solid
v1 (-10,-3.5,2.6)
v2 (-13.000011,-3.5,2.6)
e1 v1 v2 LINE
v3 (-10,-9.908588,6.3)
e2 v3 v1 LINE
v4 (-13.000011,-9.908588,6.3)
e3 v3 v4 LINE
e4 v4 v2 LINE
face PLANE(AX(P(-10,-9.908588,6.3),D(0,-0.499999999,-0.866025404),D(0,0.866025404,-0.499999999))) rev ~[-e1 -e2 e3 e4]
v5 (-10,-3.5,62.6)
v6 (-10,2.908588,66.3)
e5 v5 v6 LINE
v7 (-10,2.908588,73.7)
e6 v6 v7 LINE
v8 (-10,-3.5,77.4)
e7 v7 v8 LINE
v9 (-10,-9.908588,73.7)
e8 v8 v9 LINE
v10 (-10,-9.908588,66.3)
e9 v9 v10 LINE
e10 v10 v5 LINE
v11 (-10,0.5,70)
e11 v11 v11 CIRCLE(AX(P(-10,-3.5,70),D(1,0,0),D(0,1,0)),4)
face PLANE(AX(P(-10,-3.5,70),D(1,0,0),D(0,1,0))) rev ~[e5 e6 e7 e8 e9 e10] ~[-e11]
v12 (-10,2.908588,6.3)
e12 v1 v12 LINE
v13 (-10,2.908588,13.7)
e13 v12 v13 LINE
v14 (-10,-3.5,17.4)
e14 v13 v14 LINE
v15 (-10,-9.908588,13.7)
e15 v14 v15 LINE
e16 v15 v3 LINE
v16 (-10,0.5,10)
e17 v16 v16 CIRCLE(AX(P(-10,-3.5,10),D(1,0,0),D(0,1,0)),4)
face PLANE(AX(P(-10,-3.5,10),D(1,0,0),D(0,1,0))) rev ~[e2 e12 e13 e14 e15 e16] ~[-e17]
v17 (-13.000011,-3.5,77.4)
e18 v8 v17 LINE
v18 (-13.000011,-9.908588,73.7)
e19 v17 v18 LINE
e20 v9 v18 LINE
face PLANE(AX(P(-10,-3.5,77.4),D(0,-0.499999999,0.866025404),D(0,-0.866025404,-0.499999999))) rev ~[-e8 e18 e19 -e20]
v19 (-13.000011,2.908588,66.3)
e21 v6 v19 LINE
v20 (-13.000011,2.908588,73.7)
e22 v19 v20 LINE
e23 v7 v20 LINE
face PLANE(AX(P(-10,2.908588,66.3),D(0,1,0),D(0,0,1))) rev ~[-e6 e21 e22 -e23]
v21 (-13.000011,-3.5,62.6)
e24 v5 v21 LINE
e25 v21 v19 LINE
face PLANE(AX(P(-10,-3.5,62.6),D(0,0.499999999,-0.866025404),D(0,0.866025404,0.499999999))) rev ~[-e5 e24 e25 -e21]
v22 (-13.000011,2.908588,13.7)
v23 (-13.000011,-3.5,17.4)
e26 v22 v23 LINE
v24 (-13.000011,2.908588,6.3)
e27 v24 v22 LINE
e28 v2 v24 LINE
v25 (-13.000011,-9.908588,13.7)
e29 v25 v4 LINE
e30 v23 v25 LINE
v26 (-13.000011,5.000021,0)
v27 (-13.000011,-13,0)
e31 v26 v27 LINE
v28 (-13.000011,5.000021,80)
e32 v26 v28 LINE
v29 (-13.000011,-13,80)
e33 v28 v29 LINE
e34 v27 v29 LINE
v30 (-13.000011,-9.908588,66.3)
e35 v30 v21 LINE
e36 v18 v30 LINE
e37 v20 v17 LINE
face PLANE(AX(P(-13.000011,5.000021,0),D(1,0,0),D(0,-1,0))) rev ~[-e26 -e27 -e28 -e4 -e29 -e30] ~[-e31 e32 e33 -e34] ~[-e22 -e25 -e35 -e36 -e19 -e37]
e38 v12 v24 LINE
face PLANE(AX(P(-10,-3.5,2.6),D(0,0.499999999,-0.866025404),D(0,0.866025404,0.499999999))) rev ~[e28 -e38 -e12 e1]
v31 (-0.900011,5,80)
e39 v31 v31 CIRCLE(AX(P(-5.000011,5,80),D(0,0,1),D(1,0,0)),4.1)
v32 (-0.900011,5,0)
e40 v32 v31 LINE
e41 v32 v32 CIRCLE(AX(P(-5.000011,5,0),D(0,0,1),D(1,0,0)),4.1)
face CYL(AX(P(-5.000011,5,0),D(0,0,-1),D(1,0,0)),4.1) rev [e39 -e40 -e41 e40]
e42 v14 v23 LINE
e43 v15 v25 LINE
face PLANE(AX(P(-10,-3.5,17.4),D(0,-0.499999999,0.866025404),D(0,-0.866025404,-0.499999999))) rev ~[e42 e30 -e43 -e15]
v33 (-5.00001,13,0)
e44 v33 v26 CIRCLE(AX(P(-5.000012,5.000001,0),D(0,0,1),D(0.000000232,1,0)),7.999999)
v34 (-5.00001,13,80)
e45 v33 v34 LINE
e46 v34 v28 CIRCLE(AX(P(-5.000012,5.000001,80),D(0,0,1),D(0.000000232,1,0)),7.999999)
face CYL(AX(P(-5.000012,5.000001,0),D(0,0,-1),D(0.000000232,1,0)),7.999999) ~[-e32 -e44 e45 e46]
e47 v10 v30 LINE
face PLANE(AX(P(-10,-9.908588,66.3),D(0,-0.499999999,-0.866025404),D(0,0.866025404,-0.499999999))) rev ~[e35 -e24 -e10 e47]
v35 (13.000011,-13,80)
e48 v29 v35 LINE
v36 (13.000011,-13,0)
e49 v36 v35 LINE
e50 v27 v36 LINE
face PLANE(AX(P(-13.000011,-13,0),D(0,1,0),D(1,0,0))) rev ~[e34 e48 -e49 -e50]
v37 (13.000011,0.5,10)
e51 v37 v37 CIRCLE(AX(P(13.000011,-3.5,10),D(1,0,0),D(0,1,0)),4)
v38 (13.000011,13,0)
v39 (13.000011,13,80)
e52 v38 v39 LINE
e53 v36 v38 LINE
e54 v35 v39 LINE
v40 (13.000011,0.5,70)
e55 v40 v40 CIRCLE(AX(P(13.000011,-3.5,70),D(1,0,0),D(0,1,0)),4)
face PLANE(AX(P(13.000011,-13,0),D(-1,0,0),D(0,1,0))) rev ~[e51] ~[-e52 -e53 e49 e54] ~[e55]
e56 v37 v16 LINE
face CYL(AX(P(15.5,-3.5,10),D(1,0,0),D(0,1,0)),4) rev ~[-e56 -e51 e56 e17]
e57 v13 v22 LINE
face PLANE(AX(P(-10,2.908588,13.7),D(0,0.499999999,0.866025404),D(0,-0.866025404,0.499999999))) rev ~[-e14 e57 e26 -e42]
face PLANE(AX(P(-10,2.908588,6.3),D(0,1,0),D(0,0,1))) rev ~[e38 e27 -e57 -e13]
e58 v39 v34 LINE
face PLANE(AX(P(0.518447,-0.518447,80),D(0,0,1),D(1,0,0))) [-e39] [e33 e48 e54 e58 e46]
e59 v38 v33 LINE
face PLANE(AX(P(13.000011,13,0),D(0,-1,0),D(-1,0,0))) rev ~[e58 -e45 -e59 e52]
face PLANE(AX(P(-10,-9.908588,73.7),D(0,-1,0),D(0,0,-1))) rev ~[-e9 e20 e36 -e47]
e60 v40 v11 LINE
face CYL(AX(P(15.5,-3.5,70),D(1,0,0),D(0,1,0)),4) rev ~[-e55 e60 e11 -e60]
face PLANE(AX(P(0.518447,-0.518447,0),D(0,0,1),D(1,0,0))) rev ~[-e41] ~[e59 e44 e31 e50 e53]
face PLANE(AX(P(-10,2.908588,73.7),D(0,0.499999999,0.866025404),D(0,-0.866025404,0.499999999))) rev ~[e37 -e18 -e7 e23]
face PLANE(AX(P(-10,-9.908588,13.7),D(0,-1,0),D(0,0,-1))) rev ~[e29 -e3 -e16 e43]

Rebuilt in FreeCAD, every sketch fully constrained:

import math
import FreeCAD as App
import Part
import Sketcher
Q = App.Units.Quantity


def add_polygon(sketch, points):
    """Adds a closed chain of lines whose ends are joined by coincident constraints."""
    first, n = sketch.GeometryCount, len(points)
    for a, b in zip(points, points[1:] + points[:1]):
        sketch.addGeometry(Part.LineSegment(App.Vector(*a, 0), App.Vector(*b, 0)), False)
    for i in range(n):
        sketch.addConstraint(Sketcher.Constraint("Coincident", first + i, 2, first + (i + 1) % n, 1))

doc = App.newDocument("Part")
params = doc.addObject("Spreadsheet::Sheet", "Params")
for row, (alias, value) in enumerate([
    ("sketch1_diameter", "8 mm"),
    ("pad1_length", "31 mm"),
    ("sketch2_height", "7.4 mm"),
    ("sketch2_length", "7.4 mm"),
    ("pad2_length", "4 mm"),
    ("sketch3_radius", "7.999999 mm"),
    ("sketch3_diameter", "8.2 mm"),
    ("sketch3_height", "26 mm"),
    ("pad3_length", "80 mm"),
], start=1):
    params.set(f"A{row}", alias)
    params.set(f"B{row}", "=" + value)
    params.setAlias(f"B{row}", alias)

body = doc.addObject("PartDesign::Body", "Body")
body.AllowCompound = True

# Sketch on YZ plane
sketch1 = doc.addObject("Sketcher::SketchObject", "Sketch")
body.addObject(sketch1)
sketch1.AttachmentSupport = (doc.YZ_Plane, [""])
sketch1.MapMode = "FlatFace"
sketch1.AttachmentOffset = App.Placement(App.Vector(0, 0, 15.5), App.Rotation())
sketch1.addGeometry([
    Part.Circle(App.Vector(-3.5, 70, 0), App.Vector(0, 0, 1), 4),
    Part.Circle(App.Vector(-3.5, 10, 0), App.Vector(0, 0, 1), 4),
], False)
sketch1.addConstraint([
    Sketcher.Constraint("Equal", 0, 1),
    Sketcher.Constraint("Vertical", 0, 3, 1, 3),
    Sketcher.Constraint("Diameter", 0, Q("8 mm")),
    Sketcher.Constraint("DistanceY", -1, 1, 0, 3, Q("70 mm")),
    Sketcher.Constraint("DistanceY", -1, 1, 1, 3, Q("10 mm")),
    Sketcher.Constraint("DistanceX", 0, 3, -1, 1, Q("3.5 mm")),
])
sketch1.setExpression("Constraints[2]", "Params.sketch1_diameter")
pad1 = doc.addObject("PartDesign::Pad", "Pad")
body.addObject(pad1)
pad1.Profile = sketch1
pad1.setExpression("Length", "Params.pad1_length")
pad1.Reversed = True
body2 = doc.addObject("PartDesign::Body", "Body001")
body2.AllowCompound = True

# Sketch on YZ plane
sketch2 = doc.addObject("Sketcher::SketchObject", "Sketch001")
body2.addObject(sketch2)
sketch2.AttachmentSupport = (doc.getObject("YZ_Plane001"), [""])
sketch2.MapMode = "FlatFace"
sketch2.AttachmentOffset = App.Placement(App.Vector(0, 0, -10), App.Rotation())
add_polygon(sketch2, [(2.908588, 66.3), (2.908588, 73.7), (-3.5, 77.4), (-9.908588, 73.7), (-9.908588, 66.3), (-3.5, 62.6)])  # lines 0-5
add_polygon(sketch2, [(-3.5, 2.6), (2.908588, 6.3), (2.908588, 13.7), (-3.5, 17.4), (-9.908588, 13.7), (-9.908588, 6.3)])  # lines 6-11
sketch2.addConstraint([
    Sketcher.Constraint("Vertical", 0),
    Sketcher.Constraint("Vertical", 3),
    Sketcher.Constraint("Vertical", 7),
    Sketcher.Constraint("Vertical", 10),
    Sketcher.Constraint("Parallel", 1, 4),
    Sketcher.Constraint("Parallel", 2, 5),
    Sketcher.Constraint("Parallel", 5, 6),
    Sketcher.Constraint("Parallel", 4, 8),
    Sketcher.Constraint("Parallel", 6, 9),
    Sketcher.Constraint("Parallel", 8, 11),
    Sketcher.Constraint("Horizontal", 0, 2, 2, 2),
    Sketcher.Constraint("Horizontal", 3, 2, 5, 2),
    Sketcher.Constraint("Horizontal", 7, 2, 9, 2),
    Sketcher.Constraint("Horizontal", 6, 2, 10, 2),
    Sketcher.Constraint("Vertical", 1, 2, 4, 2),
    Sketcher.Constraint("Vertical", 5, 2, 6, 2),
    Sketcher.Constraint("Vertical", 4, 2, 8, 2),
    Sketcher.Constraint("Equal", 3, 7),
    Sketcher.Constraint("Angle", 1, Q("150 deg")),
    Sketcher.Constraint("DistanceY", 0, 1, 0, 2, Q("7.4 mm")),
    Sketcher.Constraint("DistanceY", 6, 2, 5, 2, Q("60 mm")),
    Sketcher.Constraint("Distance", 1, Q("7.4 mm")),
    Sketcher.Constraint("DistanceY", -1, 1, 0, 2, Q("73.7 mm")),
    Sketcher.Constraint("DistanceX", 1, 2, -1, 1, Q("3.5 mm")),
])
sketch2.setExpression("Constraints[31]", "Params.sketch2_height")
sketch2.setExpression("Constraints[33]", "Params.sketch2_length")
pad2 = doc.addObject("PartDesign::Pad", "Pad001")
body2.addObject(pad2)
pad2.Profile = sketch2
pad2.setExpression("Length", "Params.pad2_length")
pad2.Reversed = True
doc.recompute()

boolean = doc.addObject("PartDesign::Boolean", "Boolean")
body2.addObject(boolean)
boolean.Type = "Fuse"
boolean.addObjects([body])
body3 = doc.addObject("PartDesign::Body", "Body002")

# Sketch on XY plane
sketch3 = doc.addObject("Sketcher::SketchObject", "Sketch002")
body3.addObject(sketch3)
sketch3.AttachmentSupport = (doc.getObject("XY_Plane002"), [""])
sketch3.MapMode = "FlatFace"
sketch3.addGeometry([
    Part.LineSegment(App.Vector(-13.000011, 5.000021, 0), App.Vector(-13.000011, -13, 0)),  # 0
    Part.LineSegment(App.Vector(-13.000011, -13, 0), App.Vector(13.000011, -13, 0)),  # 1
    Part.LineSegment(App.Vector(13.000011, -13, 0), App.Vector(13.000011, 13, 0)),  # 2
    Part.LineSegment(App.Vector(13.000011, 13, 0), App.Vector(-5.00001, 13, 0)),  # 3
    Part.ArcOfCircle(Part.Circle(App.Vector(-5.000012, 5.000001, 0), App.Vector(0, 0, 1), 7.999999), math.radians(89.999987), math.radians(179.999856)),  # 4
    Part.Circle(App.Vector(-5.000011, 5, 0), App.Vector(0, 0, 1), 4.1),  # 5
], False)
sketch3.addConstraint([
    Sketcher.Constraint("Coincident", 0, 2, 1, 1),
    Sketcher.Constraint("Coincident", 1, 2, 2, 1),
    Sketcher.Constraint("Coincident", 2, 2, 3, 1),
    Sketcher.Constraint("Tangent", 3, 2, 4, 1),
    Sketcher.Constraint("Coincident", 4, 2, 0, 1),
    Sketcher.Constraint("Vertical", 0),
    Sketcher.Constraint("Horizontal", 1),
    Sketcher.Constraint("Vertical", 2),
    Sketcher.Constraint("Horizontal", 3),
    Sketcher.Constraint("Coincident", 5, 3, 4, 3),
    Sketcher.Constraint("Symmetric", 0, 2, 2, 2, -1, 1),
    Sketcher.Constraint("Equal", 3, 0),
    Sketcher.Constraint("Radius", 4, Q("7.999999 mm")),
    Sketcher.Constraint("Diameter", 5, Q("8.2 mm")),
    Sketcher.Constraint("DistanceY", 2, 1, 2, 2, Q("26 mm")),
    Sketcher.Constraint("DistanceX", 3, 2, 3, 1, Q("18.000021 mm")),
])
sketch3.setExpression("Constraints[12]", "Params.sketch3_radius")
sketch3.setExpression("Constraints[13]", "Params.sketch3_diameter")
sketch3.setExpression("Constraints[14]", "Params.sketch3_height")
pad3 = doc.addObject("PartDesign::Pad", "Pad002")
body3.addObject(pad3)
pad3.Profile = sketch3
pad3.setExpression("Length", "Params.pad3_length")
doc.recompute()

boolean2 = doc.addObject("PartDesign::Boolean", "Boolean001")
body3.addObject(boolean2)
boolean2.Type = "Cut"
boolean2.addObjects([body2])

doc.recompute()
